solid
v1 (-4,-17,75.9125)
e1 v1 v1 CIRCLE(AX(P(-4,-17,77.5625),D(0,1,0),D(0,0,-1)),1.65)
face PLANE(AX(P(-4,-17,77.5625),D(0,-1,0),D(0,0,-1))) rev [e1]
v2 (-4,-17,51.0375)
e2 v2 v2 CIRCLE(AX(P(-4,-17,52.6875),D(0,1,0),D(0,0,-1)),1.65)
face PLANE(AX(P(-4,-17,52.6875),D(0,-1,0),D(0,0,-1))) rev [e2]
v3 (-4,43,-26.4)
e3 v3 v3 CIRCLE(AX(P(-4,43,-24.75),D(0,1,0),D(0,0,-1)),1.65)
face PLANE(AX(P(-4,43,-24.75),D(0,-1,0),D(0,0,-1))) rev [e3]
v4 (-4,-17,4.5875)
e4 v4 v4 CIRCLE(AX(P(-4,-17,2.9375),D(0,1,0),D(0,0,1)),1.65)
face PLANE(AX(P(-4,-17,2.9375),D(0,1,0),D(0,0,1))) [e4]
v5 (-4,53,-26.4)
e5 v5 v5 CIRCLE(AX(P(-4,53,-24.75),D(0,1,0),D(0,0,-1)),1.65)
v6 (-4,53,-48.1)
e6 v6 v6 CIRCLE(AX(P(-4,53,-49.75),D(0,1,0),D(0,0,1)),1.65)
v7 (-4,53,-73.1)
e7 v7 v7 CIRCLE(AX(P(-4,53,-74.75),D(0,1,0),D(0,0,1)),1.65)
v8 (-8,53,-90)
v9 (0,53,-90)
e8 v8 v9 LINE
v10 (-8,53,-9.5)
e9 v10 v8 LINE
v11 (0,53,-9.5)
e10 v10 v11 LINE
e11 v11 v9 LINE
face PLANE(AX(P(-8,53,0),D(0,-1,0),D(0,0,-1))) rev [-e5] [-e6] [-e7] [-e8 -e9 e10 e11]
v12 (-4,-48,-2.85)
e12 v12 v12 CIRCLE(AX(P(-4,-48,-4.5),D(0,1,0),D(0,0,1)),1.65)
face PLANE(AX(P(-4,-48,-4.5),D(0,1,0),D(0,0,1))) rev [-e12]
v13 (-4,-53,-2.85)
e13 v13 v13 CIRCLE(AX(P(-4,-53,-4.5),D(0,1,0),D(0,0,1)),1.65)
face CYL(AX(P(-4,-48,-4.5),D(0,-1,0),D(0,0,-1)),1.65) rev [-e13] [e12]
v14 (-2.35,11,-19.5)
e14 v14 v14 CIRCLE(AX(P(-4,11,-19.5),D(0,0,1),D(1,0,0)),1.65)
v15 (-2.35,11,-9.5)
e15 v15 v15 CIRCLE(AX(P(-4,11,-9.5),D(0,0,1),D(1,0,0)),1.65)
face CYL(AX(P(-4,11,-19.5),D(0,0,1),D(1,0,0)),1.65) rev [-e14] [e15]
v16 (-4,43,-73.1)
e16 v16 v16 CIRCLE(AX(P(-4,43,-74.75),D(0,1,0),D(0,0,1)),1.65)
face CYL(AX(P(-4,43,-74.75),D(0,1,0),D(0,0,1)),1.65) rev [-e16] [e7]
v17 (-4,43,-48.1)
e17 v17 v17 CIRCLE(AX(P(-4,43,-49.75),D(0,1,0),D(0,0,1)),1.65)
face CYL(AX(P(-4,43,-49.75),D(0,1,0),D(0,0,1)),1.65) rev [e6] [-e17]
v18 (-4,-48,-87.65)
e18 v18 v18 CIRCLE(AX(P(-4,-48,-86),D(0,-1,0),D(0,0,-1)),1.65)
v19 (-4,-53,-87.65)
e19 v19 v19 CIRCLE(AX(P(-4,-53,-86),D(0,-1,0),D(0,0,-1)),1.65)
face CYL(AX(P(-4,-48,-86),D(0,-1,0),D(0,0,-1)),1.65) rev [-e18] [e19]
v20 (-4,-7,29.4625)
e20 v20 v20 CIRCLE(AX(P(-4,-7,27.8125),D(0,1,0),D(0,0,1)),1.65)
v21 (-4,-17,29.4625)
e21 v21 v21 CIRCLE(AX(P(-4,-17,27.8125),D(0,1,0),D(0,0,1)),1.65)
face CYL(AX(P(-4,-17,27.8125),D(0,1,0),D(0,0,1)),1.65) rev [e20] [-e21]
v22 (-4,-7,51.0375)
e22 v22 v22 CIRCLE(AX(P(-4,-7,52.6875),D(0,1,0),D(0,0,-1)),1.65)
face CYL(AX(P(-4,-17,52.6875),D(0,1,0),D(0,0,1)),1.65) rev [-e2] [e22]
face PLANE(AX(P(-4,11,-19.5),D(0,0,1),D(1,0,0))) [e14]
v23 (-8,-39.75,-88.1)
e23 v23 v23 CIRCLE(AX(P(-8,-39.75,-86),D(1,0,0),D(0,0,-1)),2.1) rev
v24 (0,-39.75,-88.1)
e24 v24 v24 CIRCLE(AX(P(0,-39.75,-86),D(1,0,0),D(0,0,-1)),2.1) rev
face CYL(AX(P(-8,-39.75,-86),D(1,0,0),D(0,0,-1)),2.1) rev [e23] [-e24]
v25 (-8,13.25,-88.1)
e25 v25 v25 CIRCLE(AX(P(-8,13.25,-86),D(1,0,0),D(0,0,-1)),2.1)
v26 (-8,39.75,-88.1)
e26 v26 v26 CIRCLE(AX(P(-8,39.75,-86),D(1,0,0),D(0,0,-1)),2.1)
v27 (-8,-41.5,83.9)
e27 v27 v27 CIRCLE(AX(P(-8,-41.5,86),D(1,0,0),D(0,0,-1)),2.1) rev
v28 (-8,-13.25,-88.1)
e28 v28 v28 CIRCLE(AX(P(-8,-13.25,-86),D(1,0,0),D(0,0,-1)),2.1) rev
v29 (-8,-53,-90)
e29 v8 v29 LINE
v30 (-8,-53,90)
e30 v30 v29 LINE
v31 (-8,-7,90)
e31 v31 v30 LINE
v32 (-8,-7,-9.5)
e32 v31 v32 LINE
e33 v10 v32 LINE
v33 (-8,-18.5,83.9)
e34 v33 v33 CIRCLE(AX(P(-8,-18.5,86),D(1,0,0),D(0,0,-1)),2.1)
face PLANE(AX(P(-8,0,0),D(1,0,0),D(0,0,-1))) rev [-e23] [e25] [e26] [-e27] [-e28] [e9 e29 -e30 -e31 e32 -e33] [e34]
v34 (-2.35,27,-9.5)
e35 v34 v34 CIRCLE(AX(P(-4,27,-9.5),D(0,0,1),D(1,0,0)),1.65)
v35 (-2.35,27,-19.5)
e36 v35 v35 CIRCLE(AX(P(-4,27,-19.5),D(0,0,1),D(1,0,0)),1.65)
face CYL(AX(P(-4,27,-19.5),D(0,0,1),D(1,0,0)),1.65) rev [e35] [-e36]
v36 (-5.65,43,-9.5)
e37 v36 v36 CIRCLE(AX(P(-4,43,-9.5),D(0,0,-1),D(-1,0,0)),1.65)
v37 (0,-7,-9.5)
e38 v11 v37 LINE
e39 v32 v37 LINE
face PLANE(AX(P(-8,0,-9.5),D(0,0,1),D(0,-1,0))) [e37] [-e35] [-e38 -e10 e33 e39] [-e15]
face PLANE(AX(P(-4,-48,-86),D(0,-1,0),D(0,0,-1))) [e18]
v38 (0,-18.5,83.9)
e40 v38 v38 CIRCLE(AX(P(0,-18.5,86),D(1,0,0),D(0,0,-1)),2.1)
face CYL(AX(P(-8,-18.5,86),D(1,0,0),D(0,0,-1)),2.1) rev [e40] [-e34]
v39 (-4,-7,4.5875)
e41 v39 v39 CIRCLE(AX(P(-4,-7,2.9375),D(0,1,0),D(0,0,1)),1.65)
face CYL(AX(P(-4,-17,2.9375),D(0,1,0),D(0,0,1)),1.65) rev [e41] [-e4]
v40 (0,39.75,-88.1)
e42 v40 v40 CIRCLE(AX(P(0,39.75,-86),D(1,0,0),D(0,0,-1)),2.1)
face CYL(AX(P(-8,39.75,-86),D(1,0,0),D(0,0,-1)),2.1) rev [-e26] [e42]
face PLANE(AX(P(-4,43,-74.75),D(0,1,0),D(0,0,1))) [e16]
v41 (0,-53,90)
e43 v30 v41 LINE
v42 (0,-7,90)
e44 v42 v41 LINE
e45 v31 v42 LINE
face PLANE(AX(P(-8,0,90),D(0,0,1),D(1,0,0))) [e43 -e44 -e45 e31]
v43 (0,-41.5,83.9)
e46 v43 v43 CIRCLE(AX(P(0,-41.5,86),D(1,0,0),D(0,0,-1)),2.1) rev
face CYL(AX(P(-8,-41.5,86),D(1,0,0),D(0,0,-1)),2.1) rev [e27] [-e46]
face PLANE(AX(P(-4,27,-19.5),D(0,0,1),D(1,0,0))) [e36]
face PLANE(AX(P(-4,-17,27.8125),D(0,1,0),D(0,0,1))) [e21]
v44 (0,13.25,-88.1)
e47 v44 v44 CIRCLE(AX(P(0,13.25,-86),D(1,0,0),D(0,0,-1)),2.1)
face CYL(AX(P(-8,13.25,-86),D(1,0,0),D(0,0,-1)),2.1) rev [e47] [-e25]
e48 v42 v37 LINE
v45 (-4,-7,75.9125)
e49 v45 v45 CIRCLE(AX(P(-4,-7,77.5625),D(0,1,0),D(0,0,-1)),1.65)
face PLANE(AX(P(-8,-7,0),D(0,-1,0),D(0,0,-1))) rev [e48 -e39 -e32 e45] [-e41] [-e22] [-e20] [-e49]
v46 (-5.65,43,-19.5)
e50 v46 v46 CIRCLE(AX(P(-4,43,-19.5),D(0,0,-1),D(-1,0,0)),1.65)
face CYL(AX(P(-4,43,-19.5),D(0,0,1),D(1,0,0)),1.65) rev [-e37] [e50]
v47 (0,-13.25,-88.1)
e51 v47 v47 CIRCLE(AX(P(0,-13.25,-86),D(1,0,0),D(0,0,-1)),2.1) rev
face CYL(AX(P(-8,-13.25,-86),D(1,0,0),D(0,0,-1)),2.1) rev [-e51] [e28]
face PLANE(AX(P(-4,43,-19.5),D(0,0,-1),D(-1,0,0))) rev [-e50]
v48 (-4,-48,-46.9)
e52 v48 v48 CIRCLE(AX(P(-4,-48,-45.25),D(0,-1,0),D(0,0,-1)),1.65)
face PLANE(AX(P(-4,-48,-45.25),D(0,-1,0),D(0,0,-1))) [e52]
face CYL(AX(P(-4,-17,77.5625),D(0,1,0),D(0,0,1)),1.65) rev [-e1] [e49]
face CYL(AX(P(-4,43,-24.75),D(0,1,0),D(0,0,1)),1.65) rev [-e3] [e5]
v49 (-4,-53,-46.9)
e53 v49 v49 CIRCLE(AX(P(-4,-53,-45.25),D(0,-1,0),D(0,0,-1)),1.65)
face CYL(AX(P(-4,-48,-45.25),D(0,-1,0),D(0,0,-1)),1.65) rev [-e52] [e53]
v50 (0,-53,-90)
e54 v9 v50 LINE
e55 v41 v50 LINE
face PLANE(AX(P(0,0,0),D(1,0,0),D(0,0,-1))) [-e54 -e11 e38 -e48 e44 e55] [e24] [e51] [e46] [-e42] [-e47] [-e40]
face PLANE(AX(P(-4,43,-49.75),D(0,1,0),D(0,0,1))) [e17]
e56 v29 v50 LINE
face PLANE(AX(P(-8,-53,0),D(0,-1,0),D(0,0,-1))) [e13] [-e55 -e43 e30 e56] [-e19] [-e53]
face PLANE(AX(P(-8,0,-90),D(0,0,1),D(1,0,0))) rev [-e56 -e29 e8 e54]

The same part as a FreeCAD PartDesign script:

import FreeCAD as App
import Part
import Sketcher
Q = App.Units.Quantity


def add_polygon(sketch, points):
    """Adds a closed chain of lines whose ends are joined by coincident constraints."""
    first, n = sketch.GeometryCount, len(points)
    for a, b in zip(points, points[1:] + points[:1]):
        sketch.addGeometry(Part.LineSegment(App.Vector(*a, 0), App.Vector(*b, 0)), False)
    for i in range(n):
        sketch.addConstraint(Sketcher.Constraint("Coincident", first + i, 2, first + (i + 1) % n, 1))

doc = App.newDocument("Part")
params = doc.addObject("Spreadsheet::Sheet", "Params")
for row, (alias, value) in enumerate([
    ("sketch1_diameter", "4.2 mm"),
    ("sketch1_width", "46 mm"),
    ("sketch1_width2", "106 mm"),
    ("sketch1_height", "180 mm"),
    ("sketch1_height2", "80.5 mm"),
    ("pad1_length", "8 mm"),
    ("sketch2_diameter", "3.3 mm"),
    ("pocket1_length", "5 mm"),
    ("sketch3_diameter", "3.3 mm"),
    ("pocket2_length", "10 mm"),
    ("sketch4_diameter", "3.3 mm"),
    ("pocket3_length", "10 mm"),
    ("sketch5_diameter", "3.3 mm"),
    ("pocket4_length", "10 mm"),
], start=1):
    params.set(f"A{row}", alias)
    params.set(f"B{row}", "=" + value)
    params.setAlias(f"B{row}", alias)

body = doc.addObject("PartDesign::Body", "Body")

# Sketch on YZ plane
sketch1 = doc.addObject("Sketcher::SketchObject", "Sketch")
body.addObject(sketch1)
sketch1.AttachmentSupport = (doc.YZ_Plane, [""])
sketch1.MapMode = "FlatFace"
add_polygon(sketch1, [(-7, 90), (-53, 90), (-53, -90), (53, -90), (53, -9.5), (-7, -9.5)])  # lines 0-5
sketch1.addGeometry(Part.Circle(App.Vector(-41.5, 86, 0), App.Vector(0, 0, 1), 2.1), False)  # 6
sketch1.addGeometry(Part.Circle(App.Vector(-18.5, 86, 0), App.Vector(0, 0, 1), 2.1), False)  # 7
sketch1.addGeometry(Part.Circle(App.Vector(-39.75, -86, 0), App.Vector(0, 0, 1), 2.1), False)  # 8
sketch1.addGeometry(Part.Circle(App.Vector(-13.25, -86, 0), App.Vector(0, 0, 1), 2.1), False)  # 9
sketch1.addGeometry(Part.Circle(App.Vector(13.25, -86, 0), App.Vector(0, 0, 1), 2.1), False)  # 10
sketch1.addGeometry(Part.Circle(App.Vector(39.75, -86, 0), App.Vector(0, 0, 1), 2.1), False)  # 11
sketch1.addConstraint([
    Sketcher.Constraint("Horizontal", 0),
    Sketcher.Constraint("Vertical", 1),
    Sketcher.Constraint("Horizontal", 2),
    Sketcher.Constraint("Vertical", 3),
    Sketcher.Constraint("Horizontal", 4),
    Sketcher.Constraint("Vertical", 5),
    Sketcher.Constraint("Equal", 6, 7),
    Sketcher.Constraint("Equal", 7, 8),
    Sketcher.Constraint("Equal", 8, 9),
    Sketcher.Constraint("Equal", 9, 10),
    Sketcher.Constraint("Equal", 10, 11),
    Sketcher.Constraint("Symmetric", 0, 2, 2, 2, -1, 1),
    Sketcher.Constraint("Symmetric", 9, 3, 10, 3, -2),
    Sketcher.Constraint("Symmetric", 8, 3, 11, 3, -2),
    Sketcher.Constraint("Horizontal", 6, 3, 7, 3),
    Sketcher.Constraint("Horizontal", 8, 3, 9, 3),
    Sketcher.Constraint("Diameter", 6, Q("4.2 mm")),
    Sketcher.Constraint("DistanceX", 0, 2, 0, 1, Q("46 mm")),
    Sketcher.Constraint("DistanceX", 2, 1, 2, 2, Q("106 mm")),
    Sketcher.Constraint("DistanceY", 1, 2, 1, 1, Q("180 mm")),
    Sketcher.Constraint("DistanceY", 3, 1, 3, 2, Q("80.5 mm")),
    Sketcher.Constraint("DistanceY", -1, 1, 6, 3, Q("86 mm")),
    Sketcher.Constraint("DistanceY", 8, 3, -1, 1, Q("86 mm")),
    Sketcher.Constraint("DistanceX", 6, 3, 7, 3, Q("23 mm")),
    Sketcher.Constraint("DistanceX", 8, 3, 10, 3, Q("53 mm")),
    Sketcher.Constraint("DistanceX", 6, 3, -1, 1, Q("41.5 mm")),
    Sketcher.Constraint("DistanceX", 8, 3, 9, 3, Q("26.5 mm")),
])
sketch1.setExpression("Constraints[22]", "Params.sketch1_diameter")
sketch1.setExpression("Constraints[23]", "Params.sketch1_width")
sketch1.setExpression("Constraints[24]", "Params.sketch1_width2")
sketch1.setExpression("Constraints[25]", "Params.sketch1_height")
sketch1.setExpression("Constraints[26]", "Params.sketch1_height2")
pad1 = doc.addObject("PartDesign::Pad", "Pad")
body.addObject(pad1)
pad1.Profile = sketch1
pad1.setExpression("Length", "Params.pad1_length")
pad1.Reversed = True

# Sketch on XZ plane
sketch2 = doc.addObject("Sketcher::SketchObject", "Sketch001")
body.addObject(sketch2)
sketch2.AttachmentSupport = (doc.XZ_Plane, [""])
sketch2.MapMode = "FlatFace"
sketch2.AttachmentOffset = App.Placement(App.Vector(0, 0, 53), App.Rotation())
sketch2.addGeometry([
    Part.Circle(App.Vector(-4, -86, 0), App.Vector(0, 0, 1), 1.65),
    Part.Circle(App.Vector(-4, -4.5, 0), App.Vector(0, 0, 1), 1.65),
    Part.Circle(App.Vector(-4, -45.25, 0), App.Vector(0, 0, 1), 1.65),
], False)
sketch2.addConstraint([
    Sketcher.Constraint("Equal", 0, 1),
    Sketcher.Constraint("Equal", 1, 2),
    Sketcher.Constraint("Vertical", 0, 3, 1, 3),
    Sketcher.Constraint("Vertical", 1, 3, 2, 3),
    Sketcher.Constraint("Diameter", 0, Q("3.3 mm")),
    Sketcher.Constraint("DistanceX", 0, 3, -1, 1, Q("4 mm")),
    Sketcher.Constraint("DistanceY", 0, 3, -1, 1, Q("86 mm")),
    Sketcher.Constraint("DistanceY", 1, 3, -1, 1, Q("4.5 mm")),
    Sketcher.Constraint("DistanceY", 2, 3, -1, 1, Q("45.25 mm")),
])
sketch2.setExpression("Constraints[4]", "Params.sketch2_diameter")
pocket1 = doc.addObject("PartDesign::Pocket", "Pocket")
body.addObject(pocket1)
pocket1.Profile = sketch2
pocket1.setExpression("Length", "Params.pocket1_length")

# Sketch on XZ plane
sketch3 = doc.addObject("Sketcher::SketchObject", "Sketch002")
body.addObject(sketch3)
sketch3.AttachmentSupport = (doc.XZ_Plane, [""])
sketch3.MapMode = "FlatFace"
sketch3.AttachmentOffset = App.Placement(App.Vector(0, 0, -53), App.Rotation())
sketch3.addGeometry([
    Part.Circle(App.Vector(-4, -49.75, 0), App.Vector(0, 0, 1), 1.65),
    Part.Circle(App.Vector(-4, -74.75, 0), App.Vector(0, 0, 1), 1.65),
    Part.Circle(App.Vector(-4, -24.75, 0), App.Vector(0, 0, 1), 1.65),
], False)
sketch3.addConstraint([
    Sketcher.Constraint("Equal", 0, 1),
    Sketcher.Constraint("Equal", 1, 2),
    Sketcher.Constraint("Vertical", 0, 3, 1, 3),
    Sketcher.Constraint("Vertical", 1, 3, 2, 3),
    Sketcher.Constraint("Diameter", 0, Q("3.3 mm")),
    Sketcher.Constraint("DistanceX", 0, 3, -1, 1, Q("4 mm")),
    Sketcher.Constraint("DistanceY", 1, 3, 0, 3, Q("25 mm")),
    Sketcher.Constraint("DistanceY", 0, 3, 2, 3, Q("25 mm")),
    Sketcher.Constraint("DistanceY", 0, 3, -1, 1, Q("49.75 mm")),
])
sketch3.setExpression("Constraints[4]", "Params.sketch3_diameter")
pocket2 = doc.addObject("PartDesign::Pocket", "Pocket001")
body.addObject(pocket2)
pocket2.Profile = sketch3
pocket2.setExpression("Length", "Params.pocket2_length")
pocket2.Reversed = True

# Sketch on XZ plane
sketch4 = doc.addObject("Sketcher::SketchObject", "Sketch003")
body.addObject(sketch4)
sketch4.AttachmentSupport = (doc.XZ_Plane, [""])
sketch4.MapMode = "FlatFace"
sketch4.AttachmentOffset = App.Placement(App.Vector(0, 0, 7), App.Rotation())
sketch4.addGeometry([
    Part.Circle(App.Vector(-4, 2.9375, 0), App.Vector(0, 0, 1), 1.65),
    Part.Circle(App.Vector(-4, 27.8125, 0), App.Vector(0, 0, 1), 1.65),
    Part.Circle(App.Vector(-4, 52.6875, 0), App.Vector(0, 0, 1), 1.65),
    Part.Circle(App.Vector(-4, 77.5625, 0), App.Vector(0, 0, 1), 1.65),
], False)
sketch4.addConstraint([
    Sketcher.Constraint("Equal", 0, 1),
    Sketcher.Constraint("Equal", 1, 2),
    Sketcher.Constraint("Equal", 2, 3),
    Sketcher.Constraint("Vertical", 0, 3, 1, 3),
    Sketcher.Constraint("Vertical", 1, 3, 2, 3),
    Sketcher.Constraint("Vertical", 2, 3, 3, 3),
    Sketcher.Constraint("Diameter", 0, Q("3.3 mm")),
    Sketcher.Constraint("DistanceX", 0, 3, -1, 1, Q("4 mm")),
    Sketcher.Constraint("DistanceY", 0, 3, 2, 3, Q("49.75 mm")),
    Sketcher.Constraint("DistanceY", 1, 3, 3, 3, Q("49.75 mm")),
    Sketcher.Constraint("DistanceY", 0, 3, 1, 3, Q("24.875 mm")),
    Sketcher.Constraint("DistanceY", -1, 1, 0, 3, Q("2.9375 mm")),
])
sketch4.setExpression("Constraints[6]", "Params.sketch4_diameter")
pocket3 = doc.addObject("PartDesign::Pocket", "Pocket002")
body.addObject(pocket3)
pocket3.Profile = sketch4
pocket3.setExpression("Length", "Params.pocket3_length")
pocket3.Reversed = True

# Sketch on XY plane
sketch5 = doc.addObject("Sketcher::SketchObject", "Sketch004")
body.addObject(sketch5)
sketch5.AttachmentSupport = (doc.XY_Plane, [""])
sketch5.MapMode = "FlatFace"
sketch5.AttachmentOffset = App.Placement(App.Vector(0, 0, -9.5), App.Rotation())
sketch5.addGeometry([
    Part.Circle(App.Vector(-4, 11, 0), App.Vector(0, 0, 1), 1.65),
    Part.Circle(App.Vector(-4, 43, 0), App.Vector(0, 0, 1), 1.65),
    Part.Circle(App.Vector(-4, 27, 0), App.Vector(0, 0, 1), 1.65),
], False)
sketch5.addConstraint([
    Sketcher.Constraint("Equal", 0, 1),
    Sketcher.Constraint("Equal", 1, 2),
    Sketcher.Constraint("Vertical", 0, 3, 1, 3),
    Sketcher.Constraint("Vertical", 1, 3, 2, 3),
    Sketcher.Constraint("Diameter", 0, Q("3.3 mm")),
    Sketcher.Constraint("DistanceX", 0, 3, -1, 1, Q("4 mm")),
    Sketcher.Constraint("DistanceY", -1, 1, 0, 3, Q("11 mm")),
    Sketcher.Constraint("DistanceY", -1, 1, 1, 3, Q("43 mm")),
    Sketcher.Constraint("DistanceY", -1, 1, 2, 3, Q("27 mm")),
])
sketch5.setExpression("Constraints[4]", "Params.sketch5_diameter")
pocket4 = doc.addObject("PartDesign::Pocket", "Pocket003")
body.addObject(pocket4)
pocket4.Profile = sketch5
pocket4.setExpression("Length", "Params.pocket4_length")

doc.recompute()
